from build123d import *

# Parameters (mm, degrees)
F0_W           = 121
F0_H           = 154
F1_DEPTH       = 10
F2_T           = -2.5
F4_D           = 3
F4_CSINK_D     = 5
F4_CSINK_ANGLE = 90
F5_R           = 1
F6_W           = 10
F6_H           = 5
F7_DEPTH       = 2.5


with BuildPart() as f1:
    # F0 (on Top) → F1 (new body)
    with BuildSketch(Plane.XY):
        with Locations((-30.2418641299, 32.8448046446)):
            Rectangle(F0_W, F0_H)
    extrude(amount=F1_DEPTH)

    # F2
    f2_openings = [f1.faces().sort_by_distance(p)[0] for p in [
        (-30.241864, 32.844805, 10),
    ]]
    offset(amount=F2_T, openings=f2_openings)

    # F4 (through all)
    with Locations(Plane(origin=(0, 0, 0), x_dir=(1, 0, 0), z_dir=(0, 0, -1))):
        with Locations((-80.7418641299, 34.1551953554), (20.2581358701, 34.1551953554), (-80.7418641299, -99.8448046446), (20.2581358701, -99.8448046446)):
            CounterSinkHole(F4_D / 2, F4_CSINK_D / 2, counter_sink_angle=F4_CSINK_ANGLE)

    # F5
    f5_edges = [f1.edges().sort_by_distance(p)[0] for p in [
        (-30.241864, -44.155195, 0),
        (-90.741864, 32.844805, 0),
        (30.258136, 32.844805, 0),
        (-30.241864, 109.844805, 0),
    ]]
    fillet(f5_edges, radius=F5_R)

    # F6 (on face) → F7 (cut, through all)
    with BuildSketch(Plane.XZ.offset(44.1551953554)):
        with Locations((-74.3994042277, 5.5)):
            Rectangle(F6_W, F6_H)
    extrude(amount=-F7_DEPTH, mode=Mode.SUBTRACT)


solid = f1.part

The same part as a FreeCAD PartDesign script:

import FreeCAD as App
import Part
import Sketcher


def edges_at(feature, points):
    """Names of the edges that pass closest to the given points."""
    edges = feature.Shape.Edges
    near = lambda p: min(range(len(edges)), key=lambda i: edges[i].distToShape(Part.Vertex(*p))[0])
    return sorted({f"Edge{near(p) + 1}" for p in points})


def faces_at(feature, points):
    """Names of the faces that lie closest to the given points."""
    faces = feature.Shape.Faces
    near = lambda p: min(range(len(faces)), key=lambda i: faces[i].distToShape(Part.Vertex(*p))[0])
    return sorted({f"Face{near(p) + 1}" for p in points})


def add_polygon(sketch, points):
    """Adds a closed chain of lines whose ends are joined by coincident constraints."""
    first, n = sketch.GeometryCount, len(points)
    for a, b in zip(points, points[1:] + points[:1]):
        sketch.addGeometry(Part.LineSegment(App.Vector(*a, 0), App.Vector(*b, 0)), False)
    for i in range(n):
        sketch.addConstraint(Sketcher.Constraint("Coincident", first + i, 2, first + (i + 1) % n, 1))

doc = App.newDocument("Part")
body = doc.addObject("PartDesign::Body", "Body")

sketch1 = body.newObject("Sketcher::SketchObject", "Sketch")
sketch1.AttachmentSupport = (doc.getObject("XY_Plane"), [""])
sketch1.MapMode = "FlatFace"
add_polygon(sketch1, [(-91, 110), (-91, -44), (30, -44), (30, 110)])
sketch1.addConstraint(Sketcher.Constraint("Vertical", 0))
sketch1.addConstraint(Sketcher.Constraint("Horizontal", 1))
sketch1.addConstraint(Sketcher.Constraint("Vertical", 2))
sketch1.addConstraint(Sketcher.Constraint("Horizontal", 3))
sketch1.addConstraint(Sketcher.Constraint("DistanceX", 1, 1, 1, 2, 121.0))
sketch1.addConstraint(Sketcher.Constraint("DistanceY", 0, 2, 0, 1, 154.0))
sketch1.addConstraint(Sketcher.Constraint("DistanceX", 0, 2, -1, 1, 90.741864))
sketch1.addConstraint(Sketcher.Constraint("DistanceY", 0, 2, -1, 1, 44.155195))
pad1 = body.newObject("PartDesign::Pad", "Pad")
pad1.Profile = sketch1
pad1.Length = 10
doc.recompute()

thickness = body.newObject("PartDesign::Thickness", "Thickness")
thickness.Base = (pad1, faces_at(pad1, [(-30.242, 32.845, 10)]))
thickness.Value = 2.5
thickness.Reversed = True
thickness.Join = "Arc"

sketch2 = body.newObject("Sketcher::SketchObject", "Sketch001")
sketch2.AttachmentSupport = (doc.getObject("XY_Plane"), [""])
sketch2.MapMode = "FlatFace"
sketch2.addGeometry(Part.Circle(App.Vector(-80.7, -34.2, 0), App.Vector(0, 0, 1), 1.5), False)
sketch2.addGeometry(Part.Circle(App.Vector(20.3, -34.2, 0), App.Vector(0, 0, 1), 1.5), False)
sketch2.addGeometry(Part.Circle(App.Vector(-80.7, 99.8, 0), App.Vector(0, 0, 1), 1.5), False)
sketch2.addGeometry(Part.Circle(App.Vector(20.3, 99.8, 0), App.Vector(0, 0, 1), 1.5), False)
sketch2.addConstraint(Sketcher.Constraint("Equal", 0, 1))
sketch2.addConstraint(Sketcher.Constraint("Equal", 1, 2))
sketch2.addConstraint(Sketcher.Constraint("Equal", 2, 3))
sketch2.addConstraint(Sketcher.Constraint("Horizontal", 0, 3, 1, 3))
sketch2.addConstraint(Sketcher.Constraint("Horizontal", 2, 3, 3, 3))
sketch2.addConstraint(Sketcher.Constraint("Vertical", 0, 3, 2, 3))
sketch2.addConstraint(Sketcher.Constraint("Vertical", 1, 3, 3, 3))
sketch2.addConstraint(Sketcher.Constraint("Diameter", 0, 3.0))
sketch2.addConstraint(Sketcher.Constraint("DistanceX", 0, 3, 1, 3, 101.0))
sketch2.addConstraint(Sketcher.Constraint("DistanceY", 0, 3, 2, 3, 134.0))
sketch2.addConstraint(Sketcher.Constraint("DistanceX", 0, 3, -1, 1, 80.741864))
sketch2.addConstraint(Sketcher.Constraint("DistanceY", 0, 3, -1, 1, 34.155195))
doc.recompute()
hole = body.newObject("PartDesign::Hole", "Hole")
hole.Profile = sketch2
hole.ThreadType = "None"
hole.Diameter = 3
hole.DepthType = "ThroughAll"
hole.HoleCutType = "Countersink"
hole.HoleCutDiameter = 5
hole.HoleCutCountersinkAngle = 90
hole.Reversed = True
doc.recompute()

fillet = body.newObject("PartDesign::Fillet", "Fillet")
fillet.Base = (hole, edges_at(hole, [
    (-30.242, -44.155, 0),
    (-90.742, 32.845, 0),
    (30.258, 32.845, 0),
    (-30.242, 109.845, 0),
]))
fillet.Radius = 1

sketch3 = body.newObject("Sketcher::SketchObject", "Sketch002")
sketch3.AttachmentSupport = (doc.getObject("XZ_Plane"), [""])
sketch3.MapMode = "FlatFace"
sketch3.AttachmentOffset = App.Placement(App.Vector(0, 0, 44.155195), App.Rotation())
add_polygon(sketch3, [(-79, 8), (-79, 3), (-69, 3), (-69, 8)])
sketch3.addConstraint(Sketcher.Constraint("Vertical", 0))
sketch3.addConstraint(Sketcher.Constraint("Horizontal", 1))
sketch3.addConstraint(Sketcher.Constraint("Vertical", 2))
sketch3.addConstraint(Sketcher.Constraint("Horizontal", 3))
sketch3.addConstraint(Sketcher.Constraint("DistanceX", 1, 1, 1, 2, 10.0))
sketch3.addConstraint(Sketcher.Constraint("DistanceY", 0, 2, 0, 1, 5.0))
sketch3.addConstraint(Sketcher.Constraint("DistanceY", -1, 1, 0, 2, 3.0))
sketch3.addConstraint(Sketcher.Constraint("DistanceX", 0, 2, -1, 1, 79.399404))
pocket1 = body.newObject("PartDesign::Pocket", "Pocket")
pocket1.Profile = sketch3
pocket1.Length = 2.5

doc.recompute()
